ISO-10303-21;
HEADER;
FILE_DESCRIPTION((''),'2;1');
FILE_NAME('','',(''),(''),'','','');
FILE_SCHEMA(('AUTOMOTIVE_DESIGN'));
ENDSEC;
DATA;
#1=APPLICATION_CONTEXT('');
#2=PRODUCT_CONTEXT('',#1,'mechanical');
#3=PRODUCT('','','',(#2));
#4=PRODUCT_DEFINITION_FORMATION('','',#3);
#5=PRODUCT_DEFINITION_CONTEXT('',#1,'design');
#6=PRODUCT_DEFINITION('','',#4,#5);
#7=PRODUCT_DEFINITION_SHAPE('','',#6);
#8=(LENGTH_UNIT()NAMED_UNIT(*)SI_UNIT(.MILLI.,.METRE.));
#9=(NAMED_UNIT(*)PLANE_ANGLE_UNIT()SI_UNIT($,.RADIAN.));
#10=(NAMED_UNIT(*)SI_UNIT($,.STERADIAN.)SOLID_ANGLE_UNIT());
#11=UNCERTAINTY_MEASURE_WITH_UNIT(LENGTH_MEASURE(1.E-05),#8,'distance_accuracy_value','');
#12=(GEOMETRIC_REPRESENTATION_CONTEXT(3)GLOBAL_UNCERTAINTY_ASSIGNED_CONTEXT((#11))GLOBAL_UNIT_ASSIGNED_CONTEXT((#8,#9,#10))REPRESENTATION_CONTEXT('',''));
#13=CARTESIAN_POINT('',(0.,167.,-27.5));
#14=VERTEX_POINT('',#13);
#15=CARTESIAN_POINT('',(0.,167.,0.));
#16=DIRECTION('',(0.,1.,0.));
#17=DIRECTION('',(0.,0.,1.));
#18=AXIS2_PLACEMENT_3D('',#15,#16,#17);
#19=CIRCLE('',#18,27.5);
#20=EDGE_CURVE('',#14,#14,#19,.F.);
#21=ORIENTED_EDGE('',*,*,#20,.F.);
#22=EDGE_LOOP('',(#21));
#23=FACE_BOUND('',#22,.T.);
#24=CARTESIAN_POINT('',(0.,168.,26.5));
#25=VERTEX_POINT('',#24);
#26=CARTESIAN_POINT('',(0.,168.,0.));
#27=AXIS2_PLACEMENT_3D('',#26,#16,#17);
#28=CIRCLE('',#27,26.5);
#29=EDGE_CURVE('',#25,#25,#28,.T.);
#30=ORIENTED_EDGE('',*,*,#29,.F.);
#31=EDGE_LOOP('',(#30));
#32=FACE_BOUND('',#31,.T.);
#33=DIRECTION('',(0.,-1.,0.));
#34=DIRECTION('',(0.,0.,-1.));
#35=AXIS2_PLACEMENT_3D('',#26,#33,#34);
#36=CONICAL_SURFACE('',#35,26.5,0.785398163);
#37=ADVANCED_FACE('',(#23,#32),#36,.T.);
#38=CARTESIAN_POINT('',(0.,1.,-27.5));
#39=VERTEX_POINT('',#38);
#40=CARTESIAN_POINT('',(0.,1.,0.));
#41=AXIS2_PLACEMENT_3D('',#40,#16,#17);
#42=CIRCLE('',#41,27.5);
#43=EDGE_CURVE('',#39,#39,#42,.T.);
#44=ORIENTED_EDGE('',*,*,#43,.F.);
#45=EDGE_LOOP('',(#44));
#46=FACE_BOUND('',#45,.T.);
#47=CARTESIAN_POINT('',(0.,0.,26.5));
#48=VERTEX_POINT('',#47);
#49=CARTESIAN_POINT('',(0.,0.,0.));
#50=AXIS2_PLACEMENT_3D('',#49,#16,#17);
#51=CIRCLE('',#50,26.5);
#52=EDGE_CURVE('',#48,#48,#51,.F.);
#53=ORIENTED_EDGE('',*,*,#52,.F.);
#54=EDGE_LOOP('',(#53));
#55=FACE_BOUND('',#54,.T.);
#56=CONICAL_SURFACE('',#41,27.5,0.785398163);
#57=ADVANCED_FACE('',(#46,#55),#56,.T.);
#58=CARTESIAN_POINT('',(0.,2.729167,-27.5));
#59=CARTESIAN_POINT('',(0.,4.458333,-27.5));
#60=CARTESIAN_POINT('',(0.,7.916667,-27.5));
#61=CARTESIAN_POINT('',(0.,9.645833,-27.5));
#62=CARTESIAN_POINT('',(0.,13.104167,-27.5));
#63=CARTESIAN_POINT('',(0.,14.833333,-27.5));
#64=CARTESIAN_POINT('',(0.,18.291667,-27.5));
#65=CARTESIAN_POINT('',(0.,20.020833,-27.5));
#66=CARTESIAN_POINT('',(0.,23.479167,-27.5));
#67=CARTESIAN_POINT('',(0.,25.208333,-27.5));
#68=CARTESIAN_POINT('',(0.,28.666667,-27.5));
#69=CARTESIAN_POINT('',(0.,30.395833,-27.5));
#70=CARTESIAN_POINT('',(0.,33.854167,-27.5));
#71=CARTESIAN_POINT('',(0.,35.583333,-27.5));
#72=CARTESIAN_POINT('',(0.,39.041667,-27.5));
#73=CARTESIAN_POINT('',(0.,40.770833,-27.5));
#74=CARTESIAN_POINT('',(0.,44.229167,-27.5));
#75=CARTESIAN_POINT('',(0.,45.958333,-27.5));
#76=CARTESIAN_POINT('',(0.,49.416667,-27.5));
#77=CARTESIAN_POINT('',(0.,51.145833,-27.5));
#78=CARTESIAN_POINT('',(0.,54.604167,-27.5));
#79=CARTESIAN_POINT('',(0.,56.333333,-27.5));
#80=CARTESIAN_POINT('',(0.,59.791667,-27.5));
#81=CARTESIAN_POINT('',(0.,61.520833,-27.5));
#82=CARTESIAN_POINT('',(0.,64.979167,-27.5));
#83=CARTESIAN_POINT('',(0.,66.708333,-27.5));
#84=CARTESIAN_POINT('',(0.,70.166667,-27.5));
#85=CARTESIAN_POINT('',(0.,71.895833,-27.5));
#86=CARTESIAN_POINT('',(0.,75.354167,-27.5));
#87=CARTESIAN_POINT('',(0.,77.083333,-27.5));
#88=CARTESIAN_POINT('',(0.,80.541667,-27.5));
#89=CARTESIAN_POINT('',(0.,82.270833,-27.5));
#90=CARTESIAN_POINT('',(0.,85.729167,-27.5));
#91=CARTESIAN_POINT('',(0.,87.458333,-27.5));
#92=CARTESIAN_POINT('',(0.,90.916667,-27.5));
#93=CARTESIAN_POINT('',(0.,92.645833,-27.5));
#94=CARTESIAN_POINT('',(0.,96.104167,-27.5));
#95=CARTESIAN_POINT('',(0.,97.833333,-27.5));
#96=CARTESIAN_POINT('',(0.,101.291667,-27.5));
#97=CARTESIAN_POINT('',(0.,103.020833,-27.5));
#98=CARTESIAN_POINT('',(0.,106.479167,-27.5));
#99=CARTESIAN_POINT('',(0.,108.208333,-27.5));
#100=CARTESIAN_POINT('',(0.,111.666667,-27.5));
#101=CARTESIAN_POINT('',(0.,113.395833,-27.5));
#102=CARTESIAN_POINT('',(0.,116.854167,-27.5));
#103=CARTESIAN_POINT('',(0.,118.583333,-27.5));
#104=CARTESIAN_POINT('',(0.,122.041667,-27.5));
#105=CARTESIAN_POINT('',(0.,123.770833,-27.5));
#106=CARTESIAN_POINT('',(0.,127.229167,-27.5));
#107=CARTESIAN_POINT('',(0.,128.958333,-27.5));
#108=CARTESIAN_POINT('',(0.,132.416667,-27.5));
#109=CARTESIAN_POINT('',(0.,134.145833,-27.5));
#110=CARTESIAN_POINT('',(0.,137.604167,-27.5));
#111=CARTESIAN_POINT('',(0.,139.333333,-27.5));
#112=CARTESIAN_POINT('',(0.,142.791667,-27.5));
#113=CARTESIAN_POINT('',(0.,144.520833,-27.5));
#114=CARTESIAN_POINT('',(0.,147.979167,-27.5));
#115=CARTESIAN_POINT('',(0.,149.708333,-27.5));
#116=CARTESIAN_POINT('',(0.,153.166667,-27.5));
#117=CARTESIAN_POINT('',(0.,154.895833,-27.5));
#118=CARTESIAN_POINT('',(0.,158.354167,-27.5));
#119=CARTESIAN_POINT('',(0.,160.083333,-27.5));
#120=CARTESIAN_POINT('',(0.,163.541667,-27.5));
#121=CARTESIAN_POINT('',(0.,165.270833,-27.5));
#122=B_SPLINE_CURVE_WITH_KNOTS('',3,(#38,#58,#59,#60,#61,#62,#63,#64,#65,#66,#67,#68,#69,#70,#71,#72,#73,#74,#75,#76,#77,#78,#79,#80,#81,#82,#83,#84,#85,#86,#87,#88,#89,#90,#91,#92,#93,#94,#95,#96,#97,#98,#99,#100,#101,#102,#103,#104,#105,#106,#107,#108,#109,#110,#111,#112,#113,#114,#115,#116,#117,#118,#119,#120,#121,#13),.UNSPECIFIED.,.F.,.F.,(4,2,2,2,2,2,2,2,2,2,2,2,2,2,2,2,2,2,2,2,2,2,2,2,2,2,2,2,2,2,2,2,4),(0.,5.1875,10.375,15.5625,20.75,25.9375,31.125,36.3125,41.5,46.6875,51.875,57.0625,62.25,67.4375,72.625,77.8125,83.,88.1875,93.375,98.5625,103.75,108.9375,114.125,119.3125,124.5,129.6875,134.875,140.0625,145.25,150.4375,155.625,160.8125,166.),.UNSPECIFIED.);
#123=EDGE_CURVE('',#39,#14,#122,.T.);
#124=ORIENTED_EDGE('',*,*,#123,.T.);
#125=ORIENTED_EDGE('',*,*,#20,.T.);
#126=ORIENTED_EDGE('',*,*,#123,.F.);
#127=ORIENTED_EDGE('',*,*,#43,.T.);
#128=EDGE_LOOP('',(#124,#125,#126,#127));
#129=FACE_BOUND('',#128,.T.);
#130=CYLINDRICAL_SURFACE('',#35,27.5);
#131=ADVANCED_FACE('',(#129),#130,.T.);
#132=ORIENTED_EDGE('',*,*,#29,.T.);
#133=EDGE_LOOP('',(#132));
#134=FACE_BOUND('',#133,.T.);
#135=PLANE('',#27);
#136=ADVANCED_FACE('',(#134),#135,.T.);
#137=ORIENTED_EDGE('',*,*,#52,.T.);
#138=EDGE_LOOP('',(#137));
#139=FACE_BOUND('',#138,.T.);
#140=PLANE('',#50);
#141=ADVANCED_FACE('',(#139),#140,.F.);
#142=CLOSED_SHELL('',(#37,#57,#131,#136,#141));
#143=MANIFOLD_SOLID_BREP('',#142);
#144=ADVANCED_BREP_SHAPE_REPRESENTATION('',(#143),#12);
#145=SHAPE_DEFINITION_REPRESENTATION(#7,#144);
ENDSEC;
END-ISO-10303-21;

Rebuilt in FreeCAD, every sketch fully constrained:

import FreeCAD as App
import Part
import Sketcher
from FreeCAD import Vector


def edges_at(feature, points):
    """Names of the edges that pass closest to the given points."""
    edges = feature.Shape.Edges
    near = lambda p: min(range(len(edges)), key=lambda i: edges[i].distToShape(Part.Vertex(*p))[0])
    return sorted({f"Edge{near(p) + 1}" for p in points})

doc = App.newDocument("Part")
body = doc.addObject("PartDesign::Body", "Body")

sketch1 = body.newObject("Sketcher::SketchObject", "Sketch")
sketch1.AttachmentSupport = (doc.getObject("XZ_Plane"), [""])
sketch1.MapMode = "FlatFace"
sketch1.addGeometry(Part.Circle(Vector(0, 0, 0), Vector(0, 0, 1), 27.5), False)
sketch1.addConstraint([
    Sketcher.Constraint("Coincident", 0, 3, -1, 1),
    Sketcher.Constraint("Diameter", 0, 55.0),
])
pad1 = body.newObject("PartDesign::Pad", "Pad")
pad1.Profile = sketch1
pad1.Length = 168
pad1.Reversed = True
doc.recompute()

chamfer = body.newObject("PartDesign::Chamfer", "Chamfer")
chamfer.Base = (pad1, edges_at(pad1, [(0, 0, 27.5), (0, 168, 27.5)]))
chamfer.Size = 1

doc.recompute()
